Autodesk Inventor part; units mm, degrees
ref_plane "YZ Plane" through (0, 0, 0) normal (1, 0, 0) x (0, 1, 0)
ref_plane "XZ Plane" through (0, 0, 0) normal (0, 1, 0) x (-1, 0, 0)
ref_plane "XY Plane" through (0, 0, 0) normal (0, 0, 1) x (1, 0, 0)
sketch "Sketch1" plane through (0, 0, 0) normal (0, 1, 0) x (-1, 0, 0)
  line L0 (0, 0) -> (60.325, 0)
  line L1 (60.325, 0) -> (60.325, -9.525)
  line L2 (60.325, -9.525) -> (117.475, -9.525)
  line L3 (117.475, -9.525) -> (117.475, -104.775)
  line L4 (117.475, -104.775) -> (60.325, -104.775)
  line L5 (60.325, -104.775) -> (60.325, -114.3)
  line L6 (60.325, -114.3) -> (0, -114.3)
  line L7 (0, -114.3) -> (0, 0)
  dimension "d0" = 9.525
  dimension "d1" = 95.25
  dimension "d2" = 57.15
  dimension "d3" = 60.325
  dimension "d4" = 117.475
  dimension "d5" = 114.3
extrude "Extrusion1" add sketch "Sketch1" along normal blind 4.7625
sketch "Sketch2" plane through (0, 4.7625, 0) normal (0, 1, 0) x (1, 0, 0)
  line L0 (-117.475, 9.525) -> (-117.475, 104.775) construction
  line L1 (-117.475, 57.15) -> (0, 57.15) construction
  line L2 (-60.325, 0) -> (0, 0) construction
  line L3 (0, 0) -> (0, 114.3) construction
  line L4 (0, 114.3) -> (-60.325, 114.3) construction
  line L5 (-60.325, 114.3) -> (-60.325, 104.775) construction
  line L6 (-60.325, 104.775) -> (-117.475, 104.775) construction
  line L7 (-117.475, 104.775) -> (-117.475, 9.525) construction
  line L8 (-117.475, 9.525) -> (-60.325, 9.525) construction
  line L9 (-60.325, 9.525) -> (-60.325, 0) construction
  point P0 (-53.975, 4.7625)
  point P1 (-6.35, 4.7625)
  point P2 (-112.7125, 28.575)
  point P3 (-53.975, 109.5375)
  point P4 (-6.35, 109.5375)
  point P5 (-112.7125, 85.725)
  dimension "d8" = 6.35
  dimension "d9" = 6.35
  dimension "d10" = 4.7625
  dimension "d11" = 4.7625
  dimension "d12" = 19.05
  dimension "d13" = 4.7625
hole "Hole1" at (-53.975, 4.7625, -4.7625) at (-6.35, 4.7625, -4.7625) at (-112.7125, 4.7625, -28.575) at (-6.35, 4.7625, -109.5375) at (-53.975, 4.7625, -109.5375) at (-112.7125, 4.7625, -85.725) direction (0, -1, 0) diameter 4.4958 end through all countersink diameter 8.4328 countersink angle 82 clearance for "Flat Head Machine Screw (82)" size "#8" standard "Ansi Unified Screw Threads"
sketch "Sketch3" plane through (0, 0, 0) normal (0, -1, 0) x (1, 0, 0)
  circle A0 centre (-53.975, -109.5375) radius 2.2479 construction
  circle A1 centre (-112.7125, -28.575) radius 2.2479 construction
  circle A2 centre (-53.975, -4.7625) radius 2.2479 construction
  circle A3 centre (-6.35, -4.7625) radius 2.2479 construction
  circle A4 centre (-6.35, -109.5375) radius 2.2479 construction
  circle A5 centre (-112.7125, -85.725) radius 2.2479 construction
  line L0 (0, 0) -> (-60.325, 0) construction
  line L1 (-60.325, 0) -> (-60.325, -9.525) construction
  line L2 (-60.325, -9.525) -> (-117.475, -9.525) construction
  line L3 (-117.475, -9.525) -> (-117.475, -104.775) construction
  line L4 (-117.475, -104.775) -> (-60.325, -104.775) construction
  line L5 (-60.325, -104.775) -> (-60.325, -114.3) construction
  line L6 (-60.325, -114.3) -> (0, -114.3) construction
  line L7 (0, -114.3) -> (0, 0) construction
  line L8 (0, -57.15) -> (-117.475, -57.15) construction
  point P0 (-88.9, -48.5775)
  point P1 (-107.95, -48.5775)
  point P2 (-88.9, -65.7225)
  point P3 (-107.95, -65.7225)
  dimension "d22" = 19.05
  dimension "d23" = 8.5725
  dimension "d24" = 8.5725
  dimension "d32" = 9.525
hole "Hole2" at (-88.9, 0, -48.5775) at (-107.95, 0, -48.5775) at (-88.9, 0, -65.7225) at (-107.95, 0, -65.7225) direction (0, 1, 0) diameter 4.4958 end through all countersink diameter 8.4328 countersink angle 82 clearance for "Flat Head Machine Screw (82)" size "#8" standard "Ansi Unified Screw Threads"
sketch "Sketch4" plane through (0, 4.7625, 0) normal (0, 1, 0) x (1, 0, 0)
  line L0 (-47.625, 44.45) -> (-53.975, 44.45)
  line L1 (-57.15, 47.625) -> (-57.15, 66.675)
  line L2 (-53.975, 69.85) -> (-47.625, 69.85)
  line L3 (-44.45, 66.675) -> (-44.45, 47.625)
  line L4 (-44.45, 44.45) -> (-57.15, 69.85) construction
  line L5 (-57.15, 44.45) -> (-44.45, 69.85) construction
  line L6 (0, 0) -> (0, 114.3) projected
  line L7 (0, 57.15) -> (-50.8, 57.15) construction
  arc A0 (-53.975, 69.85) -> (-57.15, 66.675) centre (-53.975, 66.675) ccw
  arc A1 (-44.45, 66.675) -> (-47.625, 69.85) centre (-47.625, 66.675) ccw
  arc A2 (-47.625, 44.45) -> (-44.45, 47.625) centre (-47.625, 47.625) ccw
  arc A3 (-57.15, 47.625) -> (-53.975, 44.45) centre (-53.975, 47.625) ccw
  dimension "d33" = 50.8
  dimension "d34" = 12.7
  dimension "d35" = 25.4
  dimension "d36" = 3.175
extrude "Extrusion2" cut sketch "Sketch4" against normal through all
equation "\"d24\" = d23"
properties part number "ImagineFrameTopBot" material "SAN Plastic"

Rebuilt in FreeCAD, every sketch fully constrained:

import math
import FreeCAD as App
import Part
import Sketcher
Q = App.Units.Quantity


def add_polygon(sketch, points):
    """Adds a closed chain of lines whose ends are joined by coincident constraints."""
    first, n = sketch.GeometryCount, len(points)
    for a, b in zip(points, points[1:] + points[:1]):
        sketch.addGeometry(Part.LineSegment(App.Vector(*a, 0), App.Vector(*b, 0)), False)
    for i in range(n):
        sketch.addConstraint(Sketcher.Constraint("Coincident", first + i, 2, first + (i + 1) % n, 1))

doc = App.newDocument("Part")
body = doc.addObject("PartDesign::Body", "Body")

# Sketch on XZ plane
sketch1 = doc.addObject("Sketcher::SketchObject", "Sketch")
body.addObject(sketch1)
sketch1.AttachmentSupport = (doc.XZ_Plane, [""])
sketch1.MapMode = "FlatFace"
add_polygon(sketch1, [(-60.325, 0), (0, 0), (0, -114.3), (-60.325, -114.3), (-60.325, -104.775), (-117.475, -104.775), (-117.475, -9.525), (-60.325, -9.525)])  # lines 0-7
sketch1.addConstraint([
    Sketcher.Constraint("Horizontal", 0),
    Sketcher.Constraint("Vertical", 1),
    Sketcher.Constraint("Horizontal", 2),
    Sketcher.Constraint("Vertical", 3),
    Sketcher.Constraint("Horizontal", 4),
    Sketcher.Constraint("Vertical", 5),
    Sketcher.Constraint("Horizontal", 6),
    Sketcher.Constraint("Vertical", 7),
    Sketcher.Constraint("Coincident", 0, 2, -1, 1),
    Sketcher.Constraint("Vertical", 3, 2, 6, 2),
    Sketcher.Constraint("Equal", 3, 7),
    Sketcher.Constraint("DistanceY", 1, 2, 1, 1, Q("4.5 in")),
    Sketcher.Constraint("DistanceX", 4, 2, 4, 1, Q("2.25 in")),
    Sketcher.Constraint("DistanceY", 5, 1, 5, 2, Q("3.75 in")),
    Sketcher.Constraint("DistanceX", 0, 1, 0, 2, Q("2.375 in")),
])
pad1 = doc.addObject("PartDesign::Pad", "Pad")
body.addObject(pad1)
pad1.Profile = sketch1
pad1.Length = Q("0.1875 in")
pad1.Reversed = True

# Sketch on XZ plane
sketch2 = doc.addObject("Sketcher::SketchObject", "Sketch001")
body.addObject(sketch2)
sketch2.AttachmentSupport = (doc.XZ_Plane, [""])
sketch2.MapMode = "FlatFace"
sketch2.AttachmentOffset = App.Placement(App.Vector(0, 0, -0.1875 * 25.4), App.Rotation())
sketch2.addGeometry([
    Part.Circle(App.Vector(-53.975, -4.7625, 0), App.Vector(0, 0, 1), 2.2479),  # 0
    Part.Circle(App.Vector(-6.35, -4.7625, 0), App.Vector(0, 0, 1), 2.2479),  # 1
    Part.Circle(App.Vector(-112.7125, -28.575, 0), App.Vector(0, 0, 1), 2.2479),  # 2
    Part.Circle(App.Vector(-6.35, -109.5375, 0), App.Vector(0, 0, 1), 2.2479),  # 3
    Part.Circle(App.Vector(-53.975, -109.5375, 0), App.Vector(0, 0, 1), 2.2479),  # 4
    Part.Circle(App.Vector(-112.7125, -85.725, 0), App.Vector(0, 0, 1), 2.2479),  # 5
], False)
sketch2.addConstraint([
    Sketcher.Constraint("Equal", 0, 1),
    Sketcher.Constraint("Equal", 1, 2),
    Sketcher.Constraint("Equal", 2, 3),
    Sketcher.Constraint("Equal", 3, 4),
    Sketcher.Constraint("Equal", 4, 5),
    Sketcher.Constraint("Horizontal", 0, 3, 1, 3),
    Sketcher.Constraint("Horizontal", 3, 3, 4, 3),
    Sketcher.Constraint("Vertical", 1, 3, 3, 3),
    Sketcher.Constraint("Vertical", 0, 3, 4, 3),
    Sketcher.Constraint("Vertical", 2, 3, 5, 3),
    Sketcher.Constraint("Diameter", 0, Q("0.177 in")),
    Sketcher.Constraint("DistanceX", 1, 3, -1, 1, Q("0.25 in")),
    Sketcher.Constraint("DistanceY", 5, 3, 2, 3, Q("2.25 in")),
    Sketcher.Constraint("DistanceX", 0, 3, -1, 1, Q("2.125 in")),
    Sketcher.Constraint("DistanceY", 0, 3, -1, 1, Q("0.1875 in")),
    Sketcher.Constraint("DistanceX", 2, 3, -1, 1, Q("4.4375 in")),
    Sketcher.Constraint("DistanceY", 2, 3, -1, 1, Q("1.125 in")),
    Sketcher.Constraint("DistanceY", 3, 3, -1, 1, Q("4.3125 in")),
])
doc.recompute()
hole = doc.addObject("PartDesign::Hole", "Hole")
body.addObject(hole)
hole.Profile = sketch2
hole.ThreadType = "None"
hole.Diameter = Q("0.177 in")
hole.DepthType = "ThroughAll"
hole.HoleCutType = "Countersink"
hole.HoleCutDiameter = Q("0.332 in")
hole.HoleCutCountersinkAngle = 82
hole.Reversed = True

# Sketch on XZ plane
sketch3 = doc.addObject("Sketcher::SketchObject", "Sketch002")
body.addObject(sketch3)
sketch3.AttachmentSupport = (doc.XZ_Plane, [""])
sketch3.MapMode = "FlatFace"
sketch3.addGeometry([
    Part.Circle(App.Vector(-88.9, -48.5775, 0), App.Vector(0, 0, 1), 2.2479),
    Part.Circle(App.Vector(-107.95, -48.5775, 0), App.Vector(0, 0, 1), 2.2479),
    Part.Circle(App.Vector(-88.9, -65.7225, 0), App.Vector(0, 0, 1), 2.2479),
    Part.Circle(App.Vector(-107.95, -65.7225, 0), App.Vector(0, 0, 1), 2.2479),
], False)
sketch3.addConstraint([
    Sketcher.Constraint("Equal", 0, 1),
    Sketcher.Constraint("Equal", 1, 2),
    Sketcher.Constraint("Equal", 2, 3),
    Sketcher.Constraint("Horizontal", 0, 3, 1, 3),
    Sketcher.Constraint("Horizontal", 2, 3, 3, 3),
    Sketcher.Constraint("Vertical", 0, 3, 2, 3),
    Sketcher.Constraint("Vertical", 1, 3, 3, 3),
    Sketcher.Constraint("Diameter", 0, Q("0.177 in")),
    Sketcher.Constraint("DistanceX", 0, 3, -1, 1, Q("3.5 in")),
    Sketcher.Constraint("DistanceX", 1, 3, -1, 1, Q("4.25 in")),
    Sketcher.Constraint("DistanceY", 2, 3, 0, 3, Q("0.675 in")),
    Sketcher.Constraint("DistanceY", 0, 3, -1, 1, Q("1.9125 in")),
])
doc.recompute()
hole2 = doc.addObject("PartDesign::Hole", "Hole001")
body.addObject(hole2)
hole2.Profile = sketch3
hole2.ThreadType = "None"
hole2.Diameter = Q("0.177 in")
hole2.DepthType = "ThroughAll"
hole2.HoleCutType = "Countersink"
hole2.HoleCutDiameter = Q("0.332 in")
hole2.HoleCutCountersinkAngle = 82

# Sketch on XZ plane
sketch4 = doc.addObject("Sketcher::SketchObject", "Sketch003")
body.addObject(sketch4)
sketch4.AttachmentSupport = (doc.XZ_Plane, [""])
sketch4.MapMode = "FlatFace"
sketch4.AttachmentOffset = App.Placement(App.Vector(0, 0, -0.1875 * 25.4), App.Rotation())
sketch4.addGeometry([
    Part.LineSegment(App.Vector(-53.975, -44.45, 0), App.Vector(-47.625, -44.45, 0)),  # 0
    Part.ArcOfCircle(Part.Circle(App.Vector(-47.625, -47.625, 0), App.Vector(0, 0, 1), 3.175), math.radians(0), math.radians(90)),  # 1
    Part.LineSegment(App.Vector(-44.45, -47.625, 0), App.Vector(-44.45, -66.675, 0)),  # 2
    Part.ArcOfCircle(Part.Circle(App.Vector(-47.625, -66.675, 0), App.Vector(0, 0, 1), 3.175), math.radians(-90), math.radians(0)),  # 3
    Part.LineSegment(App.Vector(-47.625, -69.85, 0), App.Vector(-53.975, -69.85, 0)),  # 4
    Part.ArcOfCircle(Part.Circle(App.Vector(-53.975, -66.675, 0), App.Vector(0, 0, 1), 3.175), math.radians(180), math.radians(270)),  # 5
    Part.LineSegment(App.Vector(-57.15, -66.675, 0), App.Vector(-57.15, -47.625, 0)),  # 6
    Part.ArcOfCircle(Part.Circle(App.Vector(-53.975, -47.625, 0), App.Vector(0, 0, 1), 3.175), math.radians(90), math.radians(180)),  # 7
], False)
sketch4.addConstraint([
    Sketcher.Constraint("Tangent", 0, 2, 1, 2),
    Sketcher.Constraint("Tangent", 1, 1, 2, 1),
    Sketcher.Constraint("Tangent", 2, 2, 3, 2),
    Sketcher.Constraint("Tangent", 3, 1, 4, 1),
    Sketcher.Constraint("Tangent", 4, 2, 5, 2),
    Sketcher.Constraint("Tangent", 5, 1, 6, 1),
    Sketcher.Constraint("Tangent", 6, 2, 7, 2),
    Sketcher.Constraint("Tangent", 7, 1, 0, 1),
    Sketcher.Constraint("Horizontal", 0),
    Sketcher.Constraint("Vertical", 2),
    Sketcher.Constraint("Horizontal", 4),
    Sketcher.Constraint("Vertical", 6),
    Sketcher.Constraint("Equal", 1, 3),
    Sketcher.Constraint("Equal", 3, 5),
    Sketcher.Constraint("Equal", 5, 7),
    Sketcher.Constraint("Radius", 1, Q("0.125 in")),
    Sketcher.Constraint("DistanceX", 5, 1, 2, 2, Q("0.5 in")),
    Sketcher.Constraint("DistanceY", 2, 2, 2, 1, Q("0.75 in")),
    Sketcher.Constraint("DistanceY", 0, 2, -1, 1, Q("1.75 in")),
    Sketcher.Constraint("DistanceX", 1, 1, -1, 1, Q("1.75 in")),
])
pocket1 = doc.addObject("PartDesign::Pocket", "Pocket")
body.addObject(pocket1)
pocket1.Profile = sketch4
pocket1.Type = "ThroughAll"
pocket1.Reversed = True

doc.recompute()
